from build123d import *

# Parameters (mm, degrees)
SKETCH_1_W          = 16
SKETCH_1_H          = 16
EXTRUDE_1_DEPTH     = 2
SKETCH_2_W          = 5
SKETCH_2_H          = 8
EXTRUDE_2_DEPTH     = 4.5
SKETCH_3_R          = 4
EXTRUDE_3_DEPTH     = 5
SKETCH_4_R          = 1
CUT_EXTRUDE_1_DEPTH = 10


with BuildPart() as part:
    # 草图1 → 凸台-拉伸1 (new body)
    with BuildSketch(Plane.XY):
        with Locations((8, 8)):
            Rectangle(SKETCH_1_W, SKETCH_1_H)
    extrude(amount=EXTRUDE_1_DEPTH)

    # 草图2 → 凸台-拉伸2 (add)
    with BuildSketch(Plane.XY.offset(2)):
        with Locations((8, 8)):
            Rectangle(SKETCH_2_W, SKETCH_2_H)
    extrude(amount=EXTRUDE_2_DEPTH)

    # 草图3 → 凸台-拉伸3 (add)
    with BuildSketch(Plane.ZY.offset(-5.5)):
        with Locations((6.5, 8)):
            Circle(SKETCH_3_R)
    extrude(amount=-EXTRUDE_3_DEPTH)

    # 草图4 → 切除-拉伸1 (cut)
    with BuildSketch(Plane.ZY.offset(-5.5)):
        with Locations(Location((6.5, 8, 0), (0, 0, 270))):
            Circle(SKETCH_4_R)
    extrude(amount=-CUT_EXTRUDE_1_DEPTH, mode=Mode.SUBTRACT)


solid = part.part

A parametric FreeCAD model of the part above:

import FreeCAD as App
import Part
import Sketcher
Q = App.Units.Quantity

doc = App.newDocument("Part")
body = doc.addObject("PartDesign::Body", "Body")

# Sketch on XY plane
sketch1 = body.newObject("Sketcher::SketchObject", "Sketch")
sketch1.AttachmentSupport = (doc.getObject("XY_Plane"), [""])
sketch1.MapMode = "FlatFace"
sketch1.addGeometry(Part.LineSegment(App.Vector(0, 16, 0), App.Vector(0, 0, 0)), False)
sketch1.addGeometry(Part.LineSegment(App.Vector(0, 0, 0), App.Vector(16, 0, 0)), False)
sketch1.addGeometry(Part.LineSegment(App.Vector(16, 0, 0), App.Vector(16, 16, 0)), False)
sketch1.addGeometry(Part.LineSegment(App.Vector(16, 16, 0), App.Vector(0, 16, 0)), False)
sketch1.addConstraint(Sketcher.Constraint("Coincident", 0, 2, 1, 1))
sketch1.addConstraint(Sketcher.Constraint("Coincident", 1, 2, 2, 1))
sketch1.addConstraint(Sketcher.Constraint("Coincident", 2, 2, 3, 1))
sketch1.addConstraint(Sketcher.Constraint("Coincident", 3, 2, 0, 1))
sketch1.addConstraint(Sketcher.Constraint("Vertical", 0))
sketch1.addConstraint(Sketcher.Constraint("Horizontal", 1))
sketch1.addConstraint(Sketcher.Constraint("Vertical", 2))
sketch1.addConstraint(Sketcher.Constraint("Horizontal", 3))
sketch1.addConstraint(Sketcher.Constraint("Coincident", 0, 2, -1, 1))
sketch1.addConstraint(Sketcher.Constraint("Equal", 3, 0))
sketch1.addConstraint(Sketcher.Constraint("DistanceX", 1, 1, 1, 2, Q("16 mm")))
pad1 = body.newObject("PartDesign::Pad", "Pad")
pad1.Profile = sketch1
pad1.Length = 2

# Sketch on XY plane
sketch2 = body.newObject("Sketcher::SketchObject", "Sketch001")
sketch2.AttachmentSupport = (doc.getObject("XY_Plane"), [""])
sketch2.MapMode = "FlatFace"
sketch2.AttachmentOffset = App.Placement(App.Vector(0, 0, 2), App.Rotation())
sketch2.addGeometry(Part.LineSegment(App.Vector(6, 12, 0), App.Vector(6, 4, 0)), False)
sketch2.addGeometry(Part.LineSegment(App.Vector(6, 4, 0), App.Vector(10, 4, 0)), False)
sketch2.addGeometry(Part.LineSegment(App.Vector(10, 4, 0), App.Vector(10, 12, 0)), False)
sketch2.addGeometry(Part.LineSegment(App.Vector(10, 12, 0), App.Vector(6, 12, 0)), False)
sketch2.addConstraint(Sketcher.Constraint("Coincident", 0, 2, 1, 1))
sketch2.addConstraint(Sketcher.Constraint("Coincident", 1, 2, 2, 1))
sketch2.addConstraint(Sketcher.Constraint("Coincident", 2, 2, 3, 1))
sketch2.addConstraint(Sketcher.Constraint("Coincident", 3, 2, 0, 1))
sketch2.addConstraint(Sketcher.Constraint("Vertical", 0))
sketch2.addConstraint(Sketcher.Constraint("Horizontal", 1))
sketch2.addConstraint(Sketcher.Constraint("Vertical", 2))
sketch2.addConstraint(Sketcher.Constraint("Horizontal", 3))
sketch2.addConstraint(Sketcher.Constraint("DistanceX", 1, 1, 1, 2, Q("5 mm")))
sketch2.addConstraint(Sketcher.Constraint("DistanceY", 0, 2, 0, 1, Q("8 mm")))
sketch2.addConstraint(Sketcher.Constraint("DistanceY", -1, 1, 0, 2, Q("4 mm")))
sketch2.addConstraint(Sketcher.Constraint("DistanceX", -1, 1, 0, 2, Q("5.5 mm")))
pad2 = body.newObject("PartDesign::Pad", "Pad001")
pad2.Profile = sketch2
pad2.Length = 4.5

# Sketch on YZ plane
sketch3 = body.newObject("Sketcher::SketchObject", "Sketch002")
sketch3.AttachmentSupport = (doc.getObject("YZ_Plane"), [""])
sketch3.MapMode = "FlatFace"
sketch3.AttachmentOffset = App.Placement(App.Vector(0, 0, 5.5), App.Rotation())
sketch3.addGeometry(Part.Circle(App.Vector(8, 6.5, 0), App.Vector(0, 0, 1), 4), False)
sketch3.addConstraint(Sketcher.Constraint("Diameter", 0, Q("8 mm")))
sketch3.addConstraint(Sketcher.Constraint("DistanceX", -1, 1, 0, 3, Q("8 mm")))
sketch3.addConstraint(Sketcher.Constraint("DistanceY", -1, 1, 0, 3, Q("6.5 mm")))
pad3 = body.newObject("PartDesign::Pad", "Pad002")
pad3.Profile = sketch3
pad3.Length = 5

# Sketch on YZ plane
sketch4 = body.newObject("Sketcher::SketchObject", "Sketch003")
sketch4.AttachmentSupport = (doc.getObject("YZ_Plane"), [""])
sketch4.MapMode = "FlatFace"
sketch4.AttachmentOffset = App.Placement(App.Vector(0, 0, 5.5), App.Rotation())
sketch4.addGeometry(Part.Circle(App.Vector(8, 6.5, 0), App.Vector(0, 0, 1), 1), False)
sketch4.addConstraint(Sketcher.Constraint("Diameter", 0, Q("2 mm")))
sketch4.addConstraint(Sketcher.Constraint("DistanceX", -1, 1, 0, 3, Q("8 mm")))
sketch4.addConstraint(Sketcher.Constraint("DistanceY", -1, 1, 0, 3, Q("6.5 mm")))
pocket1 = body.newObject("PartDesign::Pocket", "Pocket")
pocket1.Profile = sketch4
pocket1.Length = 10
pocket1.Reversed = True

doc.recompute()
